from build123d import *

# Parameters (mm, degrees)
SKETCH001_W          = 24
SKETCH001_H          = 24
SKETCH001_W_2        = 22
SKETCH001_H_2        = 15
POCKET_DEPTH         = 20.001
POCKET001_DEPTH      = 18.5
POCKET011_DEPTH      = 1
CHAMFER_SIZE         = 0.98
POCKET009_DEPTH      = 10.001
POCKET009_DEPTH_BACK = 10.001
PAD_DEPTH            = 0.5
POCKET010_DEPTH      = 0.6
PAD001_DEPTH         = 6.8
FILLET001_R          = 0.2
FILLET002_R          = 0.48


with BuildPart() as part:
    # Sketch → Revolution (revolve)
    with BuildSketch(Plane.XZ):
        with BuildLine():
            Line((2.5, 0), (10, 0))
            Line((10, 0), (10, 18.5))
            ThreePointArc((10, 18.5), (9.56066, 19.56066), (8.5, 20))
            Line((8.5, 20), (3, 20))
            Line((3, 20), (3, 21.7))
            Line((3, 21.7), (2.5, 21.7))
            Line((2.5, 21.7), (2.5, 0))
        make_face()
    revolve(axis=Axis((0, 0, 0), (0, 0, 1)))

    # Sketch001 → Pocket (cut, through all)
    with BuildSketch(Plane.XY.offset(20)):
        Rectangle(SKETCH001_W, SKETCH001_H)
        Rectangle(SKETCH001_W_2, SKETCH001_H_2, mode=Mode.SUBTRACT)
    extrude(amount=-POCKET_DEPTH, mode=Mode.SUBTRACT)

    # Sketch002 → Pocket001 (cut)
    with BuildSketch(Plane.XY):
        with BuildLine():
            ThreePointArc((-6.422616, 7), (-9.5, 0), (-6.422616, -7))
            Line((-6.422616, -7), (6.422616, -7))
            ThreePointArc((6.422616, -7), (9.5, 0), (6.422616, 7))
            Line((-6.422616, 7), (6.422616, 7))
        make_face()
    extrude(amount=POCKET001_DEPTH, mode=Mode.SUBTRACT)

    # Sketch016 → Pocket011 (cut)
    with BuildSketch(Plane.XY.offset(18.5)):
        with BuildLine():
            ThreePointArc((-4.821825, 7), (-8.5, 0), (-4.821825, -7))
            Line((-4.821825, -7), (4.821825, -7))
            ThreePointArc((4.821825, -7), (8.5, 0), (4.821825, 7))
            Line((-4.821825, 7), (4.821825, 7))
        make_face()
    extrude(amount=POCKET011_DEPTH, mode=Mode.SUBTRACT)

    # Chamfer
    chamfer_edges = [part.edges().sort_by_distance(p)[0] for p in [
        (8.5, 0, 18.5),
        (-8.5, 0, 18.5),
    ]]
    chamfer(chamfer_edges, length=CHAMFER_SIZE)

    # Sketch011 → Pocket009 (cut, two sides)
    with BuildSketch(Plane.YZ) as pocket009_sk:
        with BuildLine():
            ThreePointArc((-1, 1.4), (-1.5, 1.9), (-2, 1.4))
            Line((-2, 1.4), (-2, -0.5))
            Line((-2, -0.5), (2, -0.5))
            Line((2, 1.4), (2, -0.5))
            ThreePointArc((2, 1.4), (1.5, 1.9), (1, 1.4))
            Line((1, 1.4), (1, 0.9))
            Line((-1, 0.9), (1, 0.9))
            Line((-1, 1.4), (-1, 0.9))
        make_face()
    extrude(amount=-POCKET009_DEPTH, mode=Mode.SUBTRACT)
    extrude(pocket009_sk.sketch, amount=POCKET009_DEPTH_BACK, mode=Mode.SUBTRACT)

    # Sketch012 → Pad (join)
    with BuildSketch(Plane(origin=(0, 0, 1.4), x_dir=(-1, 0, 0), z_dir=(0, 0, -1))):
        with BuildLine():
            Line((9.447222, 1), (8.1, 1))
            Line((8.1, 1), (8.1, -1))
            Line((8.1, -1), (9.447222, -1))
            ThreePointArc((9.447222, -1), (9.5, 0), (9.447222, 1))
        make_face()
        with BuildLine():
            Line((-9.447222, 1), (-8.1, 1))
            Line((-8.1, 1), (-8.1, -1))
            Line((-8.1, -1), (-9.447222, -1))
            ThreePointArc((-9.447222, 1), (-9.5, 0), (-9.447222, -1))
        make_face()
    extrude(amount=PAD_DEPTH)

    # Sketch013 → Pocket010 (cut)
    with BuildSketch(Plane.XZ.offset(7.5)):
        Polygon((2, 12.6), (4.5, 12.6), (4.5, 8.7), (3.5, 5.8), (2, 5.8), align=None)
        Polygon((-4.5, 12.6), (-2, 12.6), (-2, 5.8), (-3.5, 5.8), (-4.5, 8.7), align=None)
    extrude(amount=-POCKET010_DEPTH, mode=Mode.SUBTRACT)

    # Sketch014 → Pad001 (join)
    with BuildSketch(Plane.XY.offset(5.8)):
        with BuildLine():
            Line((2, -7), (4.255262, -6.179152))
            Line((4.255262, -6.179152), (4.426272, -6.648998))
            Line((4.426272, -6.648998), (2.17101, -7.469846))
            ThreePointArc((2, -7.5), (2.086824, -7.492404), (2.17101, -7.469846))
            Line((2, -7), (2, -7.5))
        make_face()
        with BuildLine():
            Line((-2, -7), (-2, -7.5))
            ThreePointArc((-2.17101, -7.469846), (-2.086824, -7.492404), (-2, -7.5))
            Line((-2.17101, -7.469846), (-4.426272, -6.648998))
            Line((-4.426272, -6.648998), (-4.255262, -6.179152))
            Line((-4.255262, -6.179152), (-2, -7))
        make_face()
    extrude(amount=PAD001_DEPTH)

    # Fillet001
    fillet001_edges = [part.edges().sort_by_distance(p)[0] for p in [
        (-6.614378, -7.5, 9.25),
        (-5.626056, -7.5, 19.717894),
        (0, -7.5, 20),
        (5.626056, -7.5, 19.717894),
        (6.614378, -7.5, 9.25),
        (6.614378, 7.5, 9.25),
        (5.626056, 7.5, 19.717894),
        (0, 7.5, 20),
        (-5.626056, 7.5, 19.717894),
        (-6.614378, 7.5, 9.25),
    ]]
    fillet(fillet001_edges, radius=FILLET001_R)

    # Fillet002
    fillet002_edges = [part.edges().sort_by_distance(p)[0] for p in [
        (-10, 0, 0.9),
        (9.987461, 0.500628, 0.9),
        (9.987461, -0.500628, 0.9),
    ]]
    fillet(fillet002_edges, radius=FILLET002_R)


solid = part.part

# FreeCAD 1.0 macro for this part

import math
import FreeCAD as App
import Part
import Sketcher
Q = App.Units.Quantity


def edges_at(feature, points):
    """Names of the edges that pass closest to the given points."""
    edges = feature.Shape.Edges
    near = lambda p: min(range(len(edges)), key=lambda i: edges[i].distToShape(Part.Vertex(*p))[0])
    return sorted({f"Edge{near(p) + 1}" for p in points})


def add_polygon(sketch, points):
    """Adds a closed chain of lines whose ends are joined by coincident constraints."""
    first, n = sketch.GeometryCount, len(points)
    for a, b in zip(points, points[1:] + points[:1]):
        sketch.addGeometry(Part.LineSegment(App.Vector(*a, 0), App.Vector(*b, 0)), False)
    for i in range(n):
        sketch.addConstraint(Sketcher.Constraint("Coincident", first + i, 2, first + (i + 1) % n, 1))

doc = App.newDocument("Part")
params = doc.addObject("Spreadsheet::Sheet", "Params")
for row, (alias, value) in enumerate([
    ("sketch1_radius", "1.500001 mm"),
    ("sketch1_width", "7.5 mm"),
    ("sketch1_width2", "5.5 mm"),
    ("sketch1_height", "18.5 mm"),
    ("sketch1_height2", "1.7 mm"),
    ("revolution_angle", "360 deg"),
    ("sketch2_width", "24 mm"),
    ("sketch2_width2", "22 mm"),
    ("sketch2_height", "15 mm"),
    ("sketch3_radius", "9.499999 mm"),
    ("pocket2_length", "18.5 mm"),
    ("sketch4_radius", "8.5 mm"),
    ("pocket3_length", "1 mm"),
    ("chamfer_size", "0.98 mm"),
    ("sketch5_radius", "0.5 mm"),
    ("sketch5_width", "4 mm"),
    ("sketch5_height", "1.9 mm"),
    ("sketch5_height2", "0.5 mm"),
    ("sketch6_height", "2 mm"),
    ("pad1_length", "0.5 mm"),
    ("sketch7_width", "2.5 mm"),
    ("sketch7_width2", "1.5 mm"),
    ("sketch7_height", "6.8 mm"),
    ("sketch7_height2", "3.9 mm"),
    ("pocket5_length", "0.6 mm"),
    ("sketch8_height", "0.5 mm"),
    ("sketch8_length", "2.4 mm"),
    ("sketch8_length2", "0.5 mm"),
    ("pad2_length", "6.8 mm"),
    ("fillet_radius", "0.2 mm"),
    ("fillet2_radius", "0.48 mm"),
], start=1):
    params.set(f"A{row}", alias)
    params.set(f"B{row}", "=" + value)
    params.setAlias(f"B{row}", alias)

body = doc.addObject("PartDesign::Body", "Body")

# Sketch on XZ plane
sketch1 = doc.addObject("Sketcher::SketchObject", "Sketch")
body.addObject(sketch1)
sketch1.AttachmentSupport = (doc.XZ_Plane, [""])
sketch1.MapMode = "FlatFace"
sketch1.addGeometry([
    Part.LineSegment(App.Vector(2.5, 0, 0), App.Vector(10, 0, 0)),  # 0
    Part.LineSegment(App.Vector(10, 0, 0), App.Vector(10, 18.5, 0)),  # 1
    Part.ArcOfCircle(Part.Circle(App.Vector(8.5, 18.5, 0), App.Vector(0, 0, 1), 1.5), math.radians(0), math.radians(90)),  # 2
    Part.LineSegment(App.Vector(8.5, 20, 0), App.Vector(3, 20, 0)),  # 3
    Part.LineSegment(App.Vector(3, 20, 0), App.Vector(3, 21.7, 0)),  # 4
    Part.LineSegment(App.Vector(3, 21.7, 0), App.Vector(2.5, 21.7, 0)),  # 5
    Part.LineSegment(App.Vector(2.5, 21.7, 0), App.Vector(2.5, 0, 0)),  # 6
], False)
sketch1.addConstraint([
    Sketcher.Constraint("Coincident", 0, 2, 1, 1),
    Sketcher.Constraint("Tangent", 1, 2, 2, 1),
    Sketcher.Constraint("Tangent", 2, 2, 3, 1),
    Sketcher.Constraint("Coincident", 3, 2, 4, 1),
    Sketcher.Constraint("Coincident", 4, 2, 5, 1),
    Sketcher.Constraint("Coincident", 5, 2, 6, 1),
    Sketcher.Constraint("Coincident", 6, 2, 0, 1),
    Sketcher.Constraint("Horizontal", 0),
    Sketcher.Constraint("Vertical", 1),
    Sketcher.Constraint("Horizontal", 3),
    Sketcher.Constraint("Vertical", 4),
    Sketcher.Constraint("Horizontal", 5),
    Sketcher.Constraint("Vertical", 6),
    Sketcher.Constraint("PointOnObject", 0, 2, -1),
    Sketcher.Constraint("Radius", 2, Q("1.500001 mm")),
    Sketcher.Constraint("DistanceX", 0, 1, 0, 2, Q("7.5 mm")),
    Sketcher.Constraint("DistanceX", 3, 2, 3, 1, Q("5.5 mm")),
    Sketcher.Constraint("DistanceY", 1, 1, 1, 2, Q("18.5 mm")),
    Sketcher.Constraint("DistanceY", 4, 1, 4, 2, Q("1.7 mm")),
    Sketcher.Constraint("DistanceX", -1, 1, 0, 2, Q("10 mm")),
])
sketch1.setExpression("Constraints[14]", "Params.sketch1_radius")
sketch1.setExpression("Constraints[15]", "Params.sketch1_width")
sketch1.setExpression("Constraints[16]", "Params.sketch1_width2")
sketch1.setExpression("Constraints[17]", "Params.sketch1_height")
sketch1.setExpression("Constraints[18]", "Params.sketch1_height2")
revolution = doc.addObject("PartDesign::Revolution", "Revolution")
body.addObject(revolution)
revolution.Profile = sketch1
revolution.ReferenceAxis = (sketch1, ["V_Axis"])
revolution.setExpression("Angle", "Params.revolution_angle")

# Sketch on XY plane
sketch2 = doc.addObject("Sketcher::SketchObject", "Sketch001")
body.addObject(sketch2)
sketch2.AttachmentSupport = (doc.XY_Plane, [""])
sketch2.MapMode = "FlatFace"
sketch2.AttachmentOffset = App.Placement(App.Vector(0, 0, 20), App.Rotation())
add_polygon(sketch2, [(-12, 12), (-12, -12), (12, -12), (12, 12)])  # lines 0-3
add_polygon(sketch2, [(11, -8), (-11, -8), (-11, 8), (11, 8)])  # lines 4-7
sketch2.addConstraint([
    Sketcher.Constraint("Vertical", 0),
    Sketcher.Constraint("Horizontal", 1),
    Sketcher.Constraint("Vertical", 2),
    Sketcher.Constraint("Horizontal", 3),
    Sketcher.Constraint("Horizontal", 4),
    Sketcher.Constraint("Vertical", 5),
    Sketcher.Constraint("Horizontal", 6),
    Sketcher.Constraint("Vertical", 7),
    Sketcher.Constraint("Symmetric", 0, 2, 2, 2, -1, 1),
    Sketcher.Constraint("Symmetric", 4, 2, 6, 2, -1, 1),
    Sketcher.Constraint("Equal", 3, 0),
    Sketcher.Constraint("DistanceX", 1, 1, 1, 2, Q("24 mm")),
    Sketcher.Constraint("DistanceX", 4, 2, 4, 1, Q("22 mm")),
    Sketcher.Constraint("DistanceY", 5, 1, 5, 2, Q("15 mm")),
])
sketch2.setExpression("Constraints[19]", "Params.sketch2_width")
sketch2.setExpression("Constraints[20]", "Params.sketch2_width2")
sketch2.setExpression("Constraints[21]", "Params.sketch2_height")
pocket1 = doc.addObject("PartDesign::Pocket", "Pocket")
body.addObject(pocket1)
pocket1.Profile = sketch2
pocket1.Type = "ThroughAll"

# Sketch on XY plane
sketch3 = doc.addObject("Sketcher::SketchObject", "Sketch002")
body.addObject(sketch3)
sketch3.AttachmentSupport = (doc.XY_Plane, [""])
sketch3.MapMode = "FlatFace"
sketch3.addGeometry([
    Part.ArcOfCircle(Part.Circle(App.Vector(0, 0, 0), App.Vector(0, 0, 1), 9), math.radians(133), math.radians(227)),
    Part.LineSegment(App.Vector(-6, -7, 0), App.Vector(6, -7, 0)),
    Part.ArcOfCircle(Part.Circle(App.Vector(0, 0, 0), App.Vector(0, 0, 1), 9), math.radians(-47), math.radians(47)),
    Part.LineSegment(App.Vector(6, 7, 0), App.Vector(-6, 7, 0)),
], False)
sketch3.addConstraint([
    Sketcher.Constraint("Coincident", 0, 2, 1, 1),
    Sketcher.Constraint("Coincident", 1, 2, 2, 1),
    Sketcher.Constraint("Coincident", 2, 2, 3, 1),
    Sketcher.Constraint("Coincident", 3, 2, 0, 1),
    Sketcher.Constraint("Horizontal", 1),
    Sketcher.Constraint("Horizontal", 3),
    Sketcher.Constraint("Coincident", 0, 3, -1, 1),
    Sketcher.Constraint("Coincident", 2, 3, -1, 1),
    Sketcher.Constraint("Equal", 0, 2),
    Sketcher.Constraint("Vertical", 1, 2, 2, 2),
    Sketcher.Constraint("Radius", 0, Q("9.499999 mm")),
    Sketcher.Constraint("DistanceY", 0, 2, -1, 1, Q("7 mm")),
])
sketch3.setExpression("Constraints[10]", "Params.sketch3_radius")
pocket2 = doc.addObject("PartDesign::Pocket", "Pocket001")
body.addObject(pocket2)
pocket2.Profile = sketch3
pocket2.setExpression("Length", "Params.pocket2_length")
pocket2.Reversed = True

# Sketch on XY plane
sketch4 = doc.addObject("Sketcher::SketchObject", "Sketch003")
body.addObject(sketch4)
sketch4.AttachmentSupport = (doc.XY_Plane, [""])
sketch4.MapMode = "FlatFace"
sketch4.AttachmentOffset = App.Placement(App.Vector(0, 0, 18.5), App.Rotation())
sketch4.addGeometry([
    Part.ArcOfCircle(Part.Circle(App.Vector(0, 0, 0), App.Vector(0, 0, 1), 8), math.radians(125), math.radians(235)),
    Part.LineSegment(App.Vector(-5, -7, 0), App.Vector(5, -7, 0)),
    Part.ArcOfCircle(Part.Circle(App.Vector(0, 0, 0), App.Vector(0, 0, 1), 8), math.radians(-55), math.radians(55)),
    Part.LineSegment(App.Vector(5, 7, 0), App.Vector(-5, 7, 0)),
], False)
sketch4.addConstraint([
    Sketcher.Constraint("Coincident", 0, 2, 1, 1),
    Sketcher.Constraint("Coincident", 1, 2, 2, 1),
    Sketcher.Constraint("Coincident", 2, 2, 3, 1),
    Sketcher.Constraint("Coincident", 3, 2, 0, 1),
    Sketcher.Constraint("Horizontal", 1),
    Sketcher.Constraint("Horizontal", 3),
    Sketcher.Constraint("Coincident", 0, 3, -1, 1),
    Sketcher.Constraint("Coincident", 2, 3, -1, 1),
    Sketcher.Constraint("Equal", 0, 2),
    Sketcher.Constraint("Vertical", 1, 2, 2, 2),
    Sketcher.Constraint("Radius", 0, Q("8.5 mm")),
    Sketcher.Constraint("DistanceY", 0, 2, -1, 1, Q("7 mm")),
])
sketch4.setExpression("Constraints[10]", "Params.sketch4_radius")
pocket3 = doc.addObject("PartDesign::Pocket", "Pocket002")
body.addObject(pocket3)
pocket3.Profile = sketch4
pocket3.setExpression("Length", "Params.pocket3_length")
pocket3.Reversed = True
doc.recompute()

chamfer = doc.addObject("PartDesign::Chamfer", "Chamfer")
body.addObject(chamfer)
chamfer.Base = (pocket3, edges_at(pocket3, [(8.5, 0, 18.5), (-8.5, 0, 18.5)]))
chamfer.setExpression("Size", "Params.chamfer_size")

# Sketch on YZ plane
sketch5 = doc.addObject("Sketcher::SketchObject", "Sketch004")
body.addObject(sketch5)
sketch5.AttachmentSupport = (doc.YZ_Plane, [""])
sketch5.MapMode = "FlatFace"
sketch5.addGeometry([
    Part.ArcOfCircle(Part.Circle(App.Vector(-1.5, 1.4, 0), App.Vector(0, 0, 1), 0.5), math.radians(0), math.radians(180)),  # 0
    Part.LineSegment(App.Vector(-2, 1.4, 0), App.Vector(-2, -0.5, 0)),  # 1
    Part.LineSegment(App.Vector(-2, -0.5, 0), App.Vector(2, -0.5, 0)),  # 2
    Part.LineSegment(App.Vector(2, -0.5, 0), App.Vector(2, 1.4, 0)),  # 3
    Part.ArcOfCircle(Part.Circle(App.Vector(1.5, 1.4, 0), App.Vector(0, 0, 1), 0.5), math.radians(0), math.radians(180)),  # 4
    Part.LineSegment(App.Vector(1, 1.4, 0), App.Vector(1, 0.9, 0)),  # 5
    Part.LineSegment(App.Vector(1, 0.9, 0), App.Vector(-1, 0.9, 0)),  # 6
    Part.LineSegment(App.Vector(-1, 0.9, 0), App.Vector(-1, 1.4, 0)),  # 7
], False)
sketch5.addConstraint([
    Sketcher.Constraint("Tangent", 0, 2, 1, 1),
    Sketcher.Constraint("Coincident", 1, 2, 2, 1),
    Sketcher.Constraint("Coincident", 2, 2, 3, 1),
    Sketcher.Constraint("Tangent", 3, 2, 4, 1),
    Sketcher.Constraint("Tangent", 4, 2, 5, 1),
    Sketcher.Constraint("Coincident", 5, 2, 6, 1),
    Sketcher.Constraint("Coincident", 6, 2, 7, 1),
    Sketcher.Constraint("Tangent", 7, 2, 0, 1),
    Sketcher.Constraint("Vertical", 1),
    Sketcher.Constraint("Horizontal", 2),
    Sketcher.Constraint("Vertical", 3),
    Sketcher.Constraint("Vertical", 5),
    Sketcher.Constraint("Horizontal", 6),
    Sketcher.Constraint("Vertical", 7),
    Sketcher.Constraint("Equal", 0, 4),
    Sketcher.Constraint("Symmetric", 0, 3, 4, 3, -2),
    Sketcher.Constraint("Radius", 0, Q("0.5 mm")),
    Sketcher.Constraint("DistanceX", 2, 1, 2, 2, Q("4 mm")),
    Sketcher.Constraint("DistanceY", 1, 2, 1, 1, Q("1.9 mm")),
    Sketcher.Constraint("DistanceY", 5, 2, 5, 1, Q("0.5 mm")),
    Sketcher.Constraint("DistanceY", -1, 1, 0, 3, Q("1.4 mm")),
])
sketch5.setExpression("Constraints[16]", "Params.sketch5_radius")
sketch5.setExpression("Constraints[17]", "Params.sketch5_width")
sketch5.setExpression("Constraints[18]", "Params.sketch5_height")
sketch5.setExpression("Constraints[19]", "Params.sketch5_height2")
pocket4 = doc.addObject("PartDesign::Pocket", "Pocket003")
body.addObject(pocket4)
pocket4.Profile = sketch5
pocket4.Type = "ThroughAll"
pocket4.Midplane = True

# Sketch on XY plane
sketch6 = doc.addObject("Sketcher::SketchObject", "Sketch005")
body.addObject(sketch6)
sketch6.AttachmentSupport = (doc.XY_Plane, [""])
sketch6.MapMode = "FlatFace"
sketch6.AttachmentOffset = App.Placement(App.Vector(0, 0, 1.4), App.Rotation())
sketch6.addGeometry([
    Part.LineSegment(App.Vector(-9.447222, 1, 0), App.Vector(-8.1, 1, 0)),  # 0
    Part.LineSegment(App.Vector(-8.1, 1, 0), App.Vector(-8.1, -1, 0)),  # 1
    Part.LineSegment(App.Vector(-8.1, -1, 0), App.Vector(-9.447222, -1, 0)),  # 2
    Part.ArcOfCircle(Part.Circle(App.Vector(0.000033, 0, 0), App.Vector(0, 0, 1), 9.500033), math.radians(173.957693), math.radians(186.042307)),  # 3
    Part.LineSegment(App.Vector(8.1, 1, 0), App.Vector(9.447222, 1, 0)),  # 4
    Part.ArcOfCircle(Part.Circle(App.Vector(-0.000033, 0, 0), App.Vector(0, 0, 1), 9.500033), math.radians(-6.042307), math.radians(6.042307)),  # 5
    Part.LineSegment(App.Vector(9.447222, -1, 0), App.Vector(8.1, -1, 0)),  # 6
    Part.LineSegment(App.Vector(8.1, -1, 0), App.Vector(8.1, 1, 0)),  # 7
], False)
sketch6.addConstraint([
    Sketcher.Constraint("Coincident", 0, 2, 1, 1),
    Sketcher.Constraint("Coincident", 1, 2, 2, 1),
    Sketcher.Constraint("Coincident", 2, 2, 3, 2),
    Sketcher.Constraint("Coincident", 3, 1, 0, 1),
    Sketcher.Constraint("Coincident", 4, 2, 5, 2),
    Sketcher.Constraint("Coincident", 5, 1, 6, 1),
    Sketcher.Constraint("Coincident", 6, 2, 7, 1),
    Sketcher.Constraint("Coincident", 7, 2, 4, 1),
    Sketcher.Constraint("Horizontal", 0),
    Sketcher.Constraint("Vertical", 1),
    Sketcher.Constraint("Horizontal", 2),
    Sketcher.Constraint("Horizontal", 4),
    Sketcher.Constraint("Horizontal", 6),
    Sketcher.Constraint("Vertical", 7),
    Sketcher.Constraint("Equal", 3, 5),
    Sketcher.Constraint("Symmetric", 3, 3, 5, 3, -1, 1),
    Sketcher.Constraint("Symmetric", 0, 2, 6, 2, -1, 1),
    Sketcher.Constraint("Symmetric", 3, 1, 4, 2, -2),
    Sketcher.Constraint("Horizontal", 2, 2, 5, 1),
    Sketcher.Constraint("DistanceY", 1, 2, 1, 1, Q("2 mm")),
    Sketcher.Constraint("DistanceX", 0, 2, -1, 1, Q("8.1 mm")),
    Sketcher.Constraint("Radius", 3, Q("9.500033 mm")),
    Sketcher.Constraint("DistanceX", 0, 1, 0, 2, Q("1.347222 mm")),
])
sketch6.setExpression("Constraints[19]", "Params.sketch6_height")
pad1 = doc.addObject("PartDesign::Pad", "Pad")
body.addObject(pad1)
pad1.Profile = sketch6
pad1.setExpression("Length", "Params.pad1_length")
pad1.Reversed = True

# Sketch on XZ plane
sketch7 = doc.addObject("Sketcher::SketchObject", "Sketch006")
body.addObject(sketch7)
sketch7.AttachmentSupport = (doc.XZ_Plane, [""])
sketch7.MapMode = "FlatFace"
sketch7.AttachmentOffset = App.Placement(App.Vector(0, 0, 7.5), App.Rotation())
add_polygon(sketch7, [(4.5, 12.6), (2, 12.6), (2, 5.8), (3.5, 5.8), (4.5, 8.7)])  # lines 0-4
add_polygon(sketch7, [(-2, 12.6), (-4.5, 12.6), (-4.5, 8.7), (-3.5, 5.8), (-2, 5.8)])  # lines 5-9
sketch7.addConstraint([
    Sketcher.Constraint("Horizontal", 0),
    Sketcher.Constraint("Vertical", 1),
    Sketcher.Constraint("Horizontal", 2),
    Sketcher.Constraint("Vertical", 4),
    Sketcher.Constraint("Horizontal", 5),
    Sketcher.Constraint("Vertical", 6),
    Sketcher.Constraint("Horizontal", 8),
    Sketcher.Constraint("Vertical", 9),
    Sketcher.Constraint("Symmetric", 4, 2, 5, 2, -2),
    Sketcher.Constraint("Symmetric", 2, 2, 7, 2, -2),
    Sketcher.Constraint("Horizontal", 3, 2, 6, 2),
    Sketcher.Constraint("Equal", 0, 5),
    Sketcher.Constraint("DistanceX", 0, 2, 0, 1, Q("2.5 mm")),
    Sketcher.Constraint("DistanceX", 2, 1, 2, 2, Q("1.5 mm")),
    Sketcher.Constraint("DistanceY", 1, 2, 1, 1, Q("6.8 mm")),
    Sketcher.Constraint("DistanceY", 4, 1, 4, 2, Q("3.9 mm")),
    Sketcher.Constraint("DistanceX", -1, 1, 0, 2, Q("2 mm")),
    Sketcher.Constraint("DistanceY", -1, 1, 0, 2, Q("12.6 mm")),
])
sketch7.setExpression("Constraints[22]", "Params.sketch7_width")
sketch7.setExpression("Constraints[23]", "Params.sketch7_width2")
sketch7.setExpression("Constraints[24]", "Params.sketch7_height")
sketch7.setExpression("Constraints[25]", "Params.sketch7_height2")
pocket5 = doc.addObject("PartDesign::Pocket", "Pocket004")
body.addObject(pocket5)
pocket5.Profile = sketch7
pocket5.setExpression("Length", "Params.pocket5_length")

# Sketch on XY plane
sketch8 = doc.addObject("Sketcher::SketchObject", "Sketch007")
body.addObject(sketch8)
sketch8.AttachmentSupport = (doc.XY_Plane, [""])
sketch8.MapMode = "FlatFace"
sketch8.AttachmentOffset = App.Placement(App.Vector(0, 0, 5.8), App.Rotation())
sketch8.addGeometry([
    Part.LineSegment(App.Vector(4.26, -6.18, 0), App.Vector(2, -7, 0)),  # 0
    Part.LineSegment(App.Vector(2, -7, 0), App.Vector(2, -7.5, 0)),  # 1
    Part.ArcOfCircle(Part.Circle(App.Vector(2, -7, 0), App.Vector(0, 0, 1), 0.5), math.radians(-90), math.radians(-70)),  # 2
    Part.LineSegment(App.Vector(2.17, -7.47, 0), App.Vector(4.43, -6.65, 0)),  # 3
    Part.LineSegment(App.Vector(4.43, -6.65, 0), App.Vector(4.26, -6.18, 0)),  # 4
    Part.LineSegment(App.Vector(-2, -7.5, 0), App.Vector(-2, -7, 0)),  # 5
    Part.LineSegment(App.Vector(-2, -7, 0), App.Vector(-4.26, -6.18, 0)),  # 6
    Part.LineSegment(App.Vector(-4.26, -6.18, 0), App.Vector(-4.43, -6.65, 0)),  # 7
    Part.LineSegment(App.Vector(-4.43, -6.65, 0), App.Vector(-2.17, -7.47, 0)),  # 8
    Part.ArcOfCircle(Part.Circle(App.Vector(-2, -7, 0), App.Vector(0, 0, 1), 0.5), math.radians(-110), math.radians(-90)),  # 9
], False)
sketch8.addConstraint([
    Sketcher.Constraint("Coincident", 0, 2, 1, 1),
    Sketcher.Constraint("Coincident", 1, 2, 2, 1),
    Sketcher.Constraint("Coincident", 2, 2, 3, 1),
    Sketcher.Constraint("Coincident", 3, 2, 4, 1),
    Sketcher.Constraint("Coincident", 4, 2, 0, 1),
    Sketcher.Constraint("Coincident", 5, 2, 6, 1),
    Sketcher.Constraint("Coincident", 6, 2, 7, 1),
    Sketcher.Constraint("Coincident", 7, 2, 8, 1),
    Sketcher.Constraint("Coincident", 8, 2, 9, 1),
    Sketcher.Constraint("Coincident", 9, 2, 5, 1),
    Sketcher.Constraint("Vertical", 1),
    Sketcher.Constraint("Vertical", 5),
    Sketcher.Constraint("Equal", 2, 9),
    Sketcher.Constraint("Symmetric", 2, 3, 9, 3, -2),
    Sketcher.Constraint("Symmetric", 0, 2, 5, 2, -2),
    Sketcher.Constraint("Symmetric", 4, 2, 6, 2, -2),
    Sketcher.Constraint("Symmetric", 3, 2, 7, 2, -2),
    Sketcher.Constraint("Parallel", 0, 3),
    Sketcher.Constraint("Perpendicular", 3, 4),
    Sketcher.Constraint("Horizontal", 2, 2, 8, 2),
    Sketcher.Constraint("Equal", 0, 3),
    Sketcher.Constraint("Angle", 0, Q("-160.000005 deg")),
    Sketcher.Constraint("DistanceY", 1, 2, 1, 1, Q("0.5 mm")),
    Sketcher.Constraint("DistanceX", -1, 1, 0, 2, Q("2 mm")),
    Sketcher.Constraint("DistanceY", 0, 2, -1, 1, Q("7 mm")),
    Sketcher.Constraint("Distance", 0, Q("2.4 mm")),
    Sketcher.Constraint("Distance", 4, Q("0.5 mm")),
    Sketcher.Constraint("Radius", 2, Q("0.499983 mm")),
])
sketch8.setExpression("Constraints[22]", "Params.sketch8_height")
sketch8.setExpression("Constraints[25]", "Params.sketch8_length")
sketch8.setExpression("Constraints[26]", "Params.sketch8_length2")
pad2 = doc.addObject("PartDesign::Pad", "Pad001")
body.addObject(pad2)
pad2.Profile = sketch8
pad2.setExpression("Length", "Params.pad2_length")
doc.recompute()

fillet = doc.addObject("PartDesign::Fillet", "Fillet")
body.addObject(fillet)
fillet.Base = (pad2, edges_at(pad2, [
    (-6.614, -7.5, 9.25),
    (-5.626, -7.5, 19.718),
    (0, -7.5, 20),
    (5.626, -7.5, 19.718),
    (6.614, -7.5, 9.25),
    (6.614, 7.5, 9.25),
    (5.626, 7.5, 19.718),
    (0, 7.5, 20),
    (-5.626, 7.5, 19.718),
    (-6.614, 7.5, 9.25),
]))
fillet.setExpression("Radius", "Params.fillet_radius")
doc.recompute()

fillet2 = doc.addObject("PartDesign::Fillet", "Fillet001")
body.addObject(fillet2)
fillet2.Base = (fillet, edges_at(fillet, [(-10, 0, 0.9), (10, 0, 0.9), (10, 0, 0.9)]))
fillet2.setExpression("Radius", "Params.fillet2_radius")

doc.recompute()
